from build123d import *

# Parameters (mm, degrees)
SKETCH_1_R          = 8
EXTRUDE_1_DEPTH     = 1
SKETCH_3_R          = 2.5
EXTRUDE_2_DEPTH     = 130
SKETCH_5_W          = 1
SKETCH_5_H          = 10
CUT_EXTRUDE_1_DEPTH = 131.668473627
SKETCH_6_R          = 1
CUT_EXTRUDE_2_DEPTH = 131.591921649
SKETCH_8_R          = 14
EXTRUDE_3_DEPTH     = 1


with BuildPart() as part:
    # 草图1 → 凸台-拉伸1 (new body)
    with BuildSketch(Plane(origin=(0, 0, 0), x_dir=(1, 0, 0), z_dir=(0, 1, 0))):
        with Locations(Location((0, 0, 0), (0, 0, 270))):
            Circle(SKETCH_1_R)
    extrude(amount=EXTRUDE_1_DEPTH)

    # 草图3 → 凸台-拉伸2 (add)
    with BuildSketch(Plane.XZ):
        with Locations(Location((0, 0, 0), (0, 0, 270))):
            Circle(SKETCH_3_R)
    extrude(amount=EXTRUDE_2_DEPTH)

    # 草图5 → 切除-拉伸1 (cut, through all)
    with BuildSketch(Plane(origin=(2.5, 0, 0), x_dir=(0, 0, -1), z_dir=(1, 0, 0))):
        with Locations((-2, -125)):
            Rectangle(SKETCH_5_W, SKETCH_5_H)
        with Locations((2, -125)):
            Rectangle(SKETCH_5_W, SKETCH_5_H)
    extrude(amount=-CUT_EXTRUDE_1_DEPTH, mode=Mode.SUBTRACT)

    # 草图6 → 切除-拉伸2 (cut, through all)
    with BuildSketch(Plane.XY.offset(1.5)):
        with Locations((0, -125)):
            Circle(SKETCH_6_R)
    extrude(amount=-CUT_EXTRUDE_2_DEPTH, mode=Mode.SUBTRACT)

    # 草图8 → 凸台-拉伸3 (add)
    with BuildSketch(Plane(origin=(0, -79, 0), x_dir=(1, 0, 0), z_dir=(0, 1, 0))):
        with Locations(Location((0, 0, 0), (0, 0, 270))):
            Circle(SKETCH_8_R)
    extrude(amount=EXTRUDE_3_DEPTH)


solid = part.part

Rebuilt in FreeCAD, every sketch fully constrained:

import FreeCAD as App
import Part
import Sketcher
from FreeCAD import Vector
Q = App.Units.Quantity


def add_polygon(sketch, points):
    """Adds a closed chain of lines whose ends are joined by coincident constraints."""
    first, n = sketch.GeometryCount, len(points)
    for a, b in zip(points, points[1:] + points[:1]):
        sketch.addGeometry(Part.LineSegment(App.Vector(*a, 0), App.Vector(*b, 0)), False)
    for i in range(n):
        sketch.addConstraint(Sketcher.Constraint("Coincident", first + i, 2, first + (i + 1) % n, 1))

doc = App.newDocument("Part")
params = doc.addObject("Spreadsheet::Sheet", "Params")
for row, (alias, value) in enumerate([
    ("sketch1_diameter", "16 mm"),
    ("pad1_length", "1 mm"),
    ("sketch2_diameter", "5 mm"),
    ("pad2_length", "130 mm"),
    ("sketch3_width", "10 mm"),
    ("sketch3_height", "1 mm"),
    ("sketch4_diameter", "2 mm"),
    ("sketch5_diameter", "28 mm"),
    ("pad3_length", "1 mm"),
], start=1):
    params.set(f"A{row}", alias)
    params.set(f"B{row}", "=" + value)
    params.setAlias(f"B{row}", alias)

body = doc.addObject("PartDesign::Body", "Body")

sketch1 = body.newObject("Sketcher::SketchObject", "Sketch")
sketch1.AttachmentSupport = (doc.getObject("XZ_Plane"), [""])
sketch1.MapMode = "FlatFace"
sketch1.addGeometry(Part.Circle(Vector(0, 0, 0), Vector(0, 0, 1), 8), False)
sketch1.addConstraint([
    Sketcher.Constraint("Coincident", 0, 3, -1, 1),
    Sketcher.Constraint("Diameter", 0, Q("16 mm")),
])
sketch1.setExpression("Constraints[1]", "Params.sketch1_diameter")
pad1 = body.newObject("PartDesign::Pad", "Pad")
pad1.Profile = sketch1
pad1.setExpression("Length", "Params.pad1_length")
pad1.Reversed = True

sketch2 = body.newObject("Sketcher::SketchObject", "Sketch001")
sketch2.AttachmentSupport = (doc.getObject("XZ_Plane"), [""])
sketch2.MapMode = "FlatFace"
sketch2.addGeometry(Part.Circle(Vector(0, 0, 0), Vector(0, 0, 1), 2.5), False)
sketch2.addConstraint([
    Sketcher.Constraint("Coincident", 0, 3, -1, 1),
    Sketcher.Constraint("Diameter", 0, Q("5 mm")),
])
sketch2.setExpression("Constraints[1]", "Params.sketch2_diameter")
pad2 = body.newObject("PartDesign::Pad", "Pad001")
pad2.Profile = sketch2
pad2.setExpression("Length", "Params.pad2_length")

sketch3 = body.newObject("Sketcher::SketchObject", "Sketch002")
sketch3.AttachmentSupport = (doc.getObject("YZ_Plane"), [""])
sketch3.MapMode = "FlatFace"
sketch3.AttachmentOffset = App.Placement(Vector(0, 0, 2.5), App.Rotation())
add_polygon(sketch3, [(-120, 2.5), (-130, 2.5), (-130, 1.5), (-120, 1.5)])
add_polygon(sketch3, [(-120, -1.5), (-130, -1.5), (-130, -2.5), (-120, -2.5)])
sketch3.addConstraint([
    Sketcher.Constraint("Horizontal", 0),
    Sketcher.Constraint("Vertical", 1),
    Sketcher.Constraint("Horizontal", 2),
    Sketcher.Constraint("Vertical", 3),
    Sketcher.Constraint("Horizontal", 4),
    Sketcher.Constraint("Vertical", 5),
    Sketcher.Constraint("Horizontal", 6),
    Sketcher.Constraint("Vertical", 7),
    Sketcher.Constraint("Symmetric", 1, 2, 4, 2, -1),
    Sketcher.Constraint("Symmetric", 3, 2, 6, 2, -1),
    Sketcher.Constraint("DistanceX", 0, 2, 0, 1, Q("10 mm")),
    Sketcher.Constraint("DistanceY", 1, 2, 1, 1, Q("1 mm")),
    Sketcher.Constraint("DistanceX", 0, 2, -1, 1, Q("130 mm")),
    Sketcher.Constraint("DistanceY", 4, 2, 1, 2, Q("3 mm")),
])
sketch3.setExpression("Constraints[18]", "Params.sketch3_width")
sketch3.setExpression("Constraints[19]", "Params.sketch3_height")
pocket1 = body.newObject("PartDesign::Pocket", "Pocket")
pocket1.Profile = sketch3
pocket1.Type = "ThroughAll"

sketch4 = body.newObject("Sketcher::SketchObject", "Sketch003")
sketch4.AttachmentSupport = (doc.getObject("XY_Plane"), [""])
sketch4.MapMode = "FlatFace"
sketch4.AttachmentOffset = App.Placement(Vector(0, 0, 1.5), App.Rotation())
sketch4.addGeometry(Part.Circle(Vector(0, -125, 0), Vector(0, 0, 1), 1), False)
sketch4.addConstraint([
    Sketcher.Constraint("PointOnObject", 0, 3, -2),
    Sketcher.Constraint("Diameter", 0, Q("2 mm")),
    Sketcher.Constraint("DistanceY", 0, 3, -1, 1, Q("125 mm")),
])
sketch4.setExpression("Constraints[1]", "Params.sketch4_diameter")
pocket2 = body.newObject("PartDesign::Pocket", "Pocket001")
pocket2.Profile = sketch4
pocket2.Type = "ThroughAll"

sketch5 = body.newObject("Sketcher::SketchObject", "Sketch004")
sketch5.AttachmentSupport = (doc.getObject("XZ_Plane"), [""])
sketch5.MapMode = "FlatFace"
sketch5.AttachmentOffset = App.Placement(Vector(0, 0, 79), App.Rotation())
sketch5.addGeometry(Part.Circle(Vector(0, 0, 0), Vector(0, 0, 1), 14), False)
sketch5.addConstraint([
    Sketcher.Constraint("Coincident", 0, 3, -1, 1),
    Sketcher.Constraint("Diameter", 0, Q("28 mm")),
])
sketch5.setExpression("Constraints[1]", "Params.sketch5_diameter")
pad3 = body.newObject("PartDesign::Pad", "Pad002")
pad3.Profile = sketch5
pad3.setExpression("Length", "Params.pad3_length")
pad3.Reversed = True

doc.recompute()
